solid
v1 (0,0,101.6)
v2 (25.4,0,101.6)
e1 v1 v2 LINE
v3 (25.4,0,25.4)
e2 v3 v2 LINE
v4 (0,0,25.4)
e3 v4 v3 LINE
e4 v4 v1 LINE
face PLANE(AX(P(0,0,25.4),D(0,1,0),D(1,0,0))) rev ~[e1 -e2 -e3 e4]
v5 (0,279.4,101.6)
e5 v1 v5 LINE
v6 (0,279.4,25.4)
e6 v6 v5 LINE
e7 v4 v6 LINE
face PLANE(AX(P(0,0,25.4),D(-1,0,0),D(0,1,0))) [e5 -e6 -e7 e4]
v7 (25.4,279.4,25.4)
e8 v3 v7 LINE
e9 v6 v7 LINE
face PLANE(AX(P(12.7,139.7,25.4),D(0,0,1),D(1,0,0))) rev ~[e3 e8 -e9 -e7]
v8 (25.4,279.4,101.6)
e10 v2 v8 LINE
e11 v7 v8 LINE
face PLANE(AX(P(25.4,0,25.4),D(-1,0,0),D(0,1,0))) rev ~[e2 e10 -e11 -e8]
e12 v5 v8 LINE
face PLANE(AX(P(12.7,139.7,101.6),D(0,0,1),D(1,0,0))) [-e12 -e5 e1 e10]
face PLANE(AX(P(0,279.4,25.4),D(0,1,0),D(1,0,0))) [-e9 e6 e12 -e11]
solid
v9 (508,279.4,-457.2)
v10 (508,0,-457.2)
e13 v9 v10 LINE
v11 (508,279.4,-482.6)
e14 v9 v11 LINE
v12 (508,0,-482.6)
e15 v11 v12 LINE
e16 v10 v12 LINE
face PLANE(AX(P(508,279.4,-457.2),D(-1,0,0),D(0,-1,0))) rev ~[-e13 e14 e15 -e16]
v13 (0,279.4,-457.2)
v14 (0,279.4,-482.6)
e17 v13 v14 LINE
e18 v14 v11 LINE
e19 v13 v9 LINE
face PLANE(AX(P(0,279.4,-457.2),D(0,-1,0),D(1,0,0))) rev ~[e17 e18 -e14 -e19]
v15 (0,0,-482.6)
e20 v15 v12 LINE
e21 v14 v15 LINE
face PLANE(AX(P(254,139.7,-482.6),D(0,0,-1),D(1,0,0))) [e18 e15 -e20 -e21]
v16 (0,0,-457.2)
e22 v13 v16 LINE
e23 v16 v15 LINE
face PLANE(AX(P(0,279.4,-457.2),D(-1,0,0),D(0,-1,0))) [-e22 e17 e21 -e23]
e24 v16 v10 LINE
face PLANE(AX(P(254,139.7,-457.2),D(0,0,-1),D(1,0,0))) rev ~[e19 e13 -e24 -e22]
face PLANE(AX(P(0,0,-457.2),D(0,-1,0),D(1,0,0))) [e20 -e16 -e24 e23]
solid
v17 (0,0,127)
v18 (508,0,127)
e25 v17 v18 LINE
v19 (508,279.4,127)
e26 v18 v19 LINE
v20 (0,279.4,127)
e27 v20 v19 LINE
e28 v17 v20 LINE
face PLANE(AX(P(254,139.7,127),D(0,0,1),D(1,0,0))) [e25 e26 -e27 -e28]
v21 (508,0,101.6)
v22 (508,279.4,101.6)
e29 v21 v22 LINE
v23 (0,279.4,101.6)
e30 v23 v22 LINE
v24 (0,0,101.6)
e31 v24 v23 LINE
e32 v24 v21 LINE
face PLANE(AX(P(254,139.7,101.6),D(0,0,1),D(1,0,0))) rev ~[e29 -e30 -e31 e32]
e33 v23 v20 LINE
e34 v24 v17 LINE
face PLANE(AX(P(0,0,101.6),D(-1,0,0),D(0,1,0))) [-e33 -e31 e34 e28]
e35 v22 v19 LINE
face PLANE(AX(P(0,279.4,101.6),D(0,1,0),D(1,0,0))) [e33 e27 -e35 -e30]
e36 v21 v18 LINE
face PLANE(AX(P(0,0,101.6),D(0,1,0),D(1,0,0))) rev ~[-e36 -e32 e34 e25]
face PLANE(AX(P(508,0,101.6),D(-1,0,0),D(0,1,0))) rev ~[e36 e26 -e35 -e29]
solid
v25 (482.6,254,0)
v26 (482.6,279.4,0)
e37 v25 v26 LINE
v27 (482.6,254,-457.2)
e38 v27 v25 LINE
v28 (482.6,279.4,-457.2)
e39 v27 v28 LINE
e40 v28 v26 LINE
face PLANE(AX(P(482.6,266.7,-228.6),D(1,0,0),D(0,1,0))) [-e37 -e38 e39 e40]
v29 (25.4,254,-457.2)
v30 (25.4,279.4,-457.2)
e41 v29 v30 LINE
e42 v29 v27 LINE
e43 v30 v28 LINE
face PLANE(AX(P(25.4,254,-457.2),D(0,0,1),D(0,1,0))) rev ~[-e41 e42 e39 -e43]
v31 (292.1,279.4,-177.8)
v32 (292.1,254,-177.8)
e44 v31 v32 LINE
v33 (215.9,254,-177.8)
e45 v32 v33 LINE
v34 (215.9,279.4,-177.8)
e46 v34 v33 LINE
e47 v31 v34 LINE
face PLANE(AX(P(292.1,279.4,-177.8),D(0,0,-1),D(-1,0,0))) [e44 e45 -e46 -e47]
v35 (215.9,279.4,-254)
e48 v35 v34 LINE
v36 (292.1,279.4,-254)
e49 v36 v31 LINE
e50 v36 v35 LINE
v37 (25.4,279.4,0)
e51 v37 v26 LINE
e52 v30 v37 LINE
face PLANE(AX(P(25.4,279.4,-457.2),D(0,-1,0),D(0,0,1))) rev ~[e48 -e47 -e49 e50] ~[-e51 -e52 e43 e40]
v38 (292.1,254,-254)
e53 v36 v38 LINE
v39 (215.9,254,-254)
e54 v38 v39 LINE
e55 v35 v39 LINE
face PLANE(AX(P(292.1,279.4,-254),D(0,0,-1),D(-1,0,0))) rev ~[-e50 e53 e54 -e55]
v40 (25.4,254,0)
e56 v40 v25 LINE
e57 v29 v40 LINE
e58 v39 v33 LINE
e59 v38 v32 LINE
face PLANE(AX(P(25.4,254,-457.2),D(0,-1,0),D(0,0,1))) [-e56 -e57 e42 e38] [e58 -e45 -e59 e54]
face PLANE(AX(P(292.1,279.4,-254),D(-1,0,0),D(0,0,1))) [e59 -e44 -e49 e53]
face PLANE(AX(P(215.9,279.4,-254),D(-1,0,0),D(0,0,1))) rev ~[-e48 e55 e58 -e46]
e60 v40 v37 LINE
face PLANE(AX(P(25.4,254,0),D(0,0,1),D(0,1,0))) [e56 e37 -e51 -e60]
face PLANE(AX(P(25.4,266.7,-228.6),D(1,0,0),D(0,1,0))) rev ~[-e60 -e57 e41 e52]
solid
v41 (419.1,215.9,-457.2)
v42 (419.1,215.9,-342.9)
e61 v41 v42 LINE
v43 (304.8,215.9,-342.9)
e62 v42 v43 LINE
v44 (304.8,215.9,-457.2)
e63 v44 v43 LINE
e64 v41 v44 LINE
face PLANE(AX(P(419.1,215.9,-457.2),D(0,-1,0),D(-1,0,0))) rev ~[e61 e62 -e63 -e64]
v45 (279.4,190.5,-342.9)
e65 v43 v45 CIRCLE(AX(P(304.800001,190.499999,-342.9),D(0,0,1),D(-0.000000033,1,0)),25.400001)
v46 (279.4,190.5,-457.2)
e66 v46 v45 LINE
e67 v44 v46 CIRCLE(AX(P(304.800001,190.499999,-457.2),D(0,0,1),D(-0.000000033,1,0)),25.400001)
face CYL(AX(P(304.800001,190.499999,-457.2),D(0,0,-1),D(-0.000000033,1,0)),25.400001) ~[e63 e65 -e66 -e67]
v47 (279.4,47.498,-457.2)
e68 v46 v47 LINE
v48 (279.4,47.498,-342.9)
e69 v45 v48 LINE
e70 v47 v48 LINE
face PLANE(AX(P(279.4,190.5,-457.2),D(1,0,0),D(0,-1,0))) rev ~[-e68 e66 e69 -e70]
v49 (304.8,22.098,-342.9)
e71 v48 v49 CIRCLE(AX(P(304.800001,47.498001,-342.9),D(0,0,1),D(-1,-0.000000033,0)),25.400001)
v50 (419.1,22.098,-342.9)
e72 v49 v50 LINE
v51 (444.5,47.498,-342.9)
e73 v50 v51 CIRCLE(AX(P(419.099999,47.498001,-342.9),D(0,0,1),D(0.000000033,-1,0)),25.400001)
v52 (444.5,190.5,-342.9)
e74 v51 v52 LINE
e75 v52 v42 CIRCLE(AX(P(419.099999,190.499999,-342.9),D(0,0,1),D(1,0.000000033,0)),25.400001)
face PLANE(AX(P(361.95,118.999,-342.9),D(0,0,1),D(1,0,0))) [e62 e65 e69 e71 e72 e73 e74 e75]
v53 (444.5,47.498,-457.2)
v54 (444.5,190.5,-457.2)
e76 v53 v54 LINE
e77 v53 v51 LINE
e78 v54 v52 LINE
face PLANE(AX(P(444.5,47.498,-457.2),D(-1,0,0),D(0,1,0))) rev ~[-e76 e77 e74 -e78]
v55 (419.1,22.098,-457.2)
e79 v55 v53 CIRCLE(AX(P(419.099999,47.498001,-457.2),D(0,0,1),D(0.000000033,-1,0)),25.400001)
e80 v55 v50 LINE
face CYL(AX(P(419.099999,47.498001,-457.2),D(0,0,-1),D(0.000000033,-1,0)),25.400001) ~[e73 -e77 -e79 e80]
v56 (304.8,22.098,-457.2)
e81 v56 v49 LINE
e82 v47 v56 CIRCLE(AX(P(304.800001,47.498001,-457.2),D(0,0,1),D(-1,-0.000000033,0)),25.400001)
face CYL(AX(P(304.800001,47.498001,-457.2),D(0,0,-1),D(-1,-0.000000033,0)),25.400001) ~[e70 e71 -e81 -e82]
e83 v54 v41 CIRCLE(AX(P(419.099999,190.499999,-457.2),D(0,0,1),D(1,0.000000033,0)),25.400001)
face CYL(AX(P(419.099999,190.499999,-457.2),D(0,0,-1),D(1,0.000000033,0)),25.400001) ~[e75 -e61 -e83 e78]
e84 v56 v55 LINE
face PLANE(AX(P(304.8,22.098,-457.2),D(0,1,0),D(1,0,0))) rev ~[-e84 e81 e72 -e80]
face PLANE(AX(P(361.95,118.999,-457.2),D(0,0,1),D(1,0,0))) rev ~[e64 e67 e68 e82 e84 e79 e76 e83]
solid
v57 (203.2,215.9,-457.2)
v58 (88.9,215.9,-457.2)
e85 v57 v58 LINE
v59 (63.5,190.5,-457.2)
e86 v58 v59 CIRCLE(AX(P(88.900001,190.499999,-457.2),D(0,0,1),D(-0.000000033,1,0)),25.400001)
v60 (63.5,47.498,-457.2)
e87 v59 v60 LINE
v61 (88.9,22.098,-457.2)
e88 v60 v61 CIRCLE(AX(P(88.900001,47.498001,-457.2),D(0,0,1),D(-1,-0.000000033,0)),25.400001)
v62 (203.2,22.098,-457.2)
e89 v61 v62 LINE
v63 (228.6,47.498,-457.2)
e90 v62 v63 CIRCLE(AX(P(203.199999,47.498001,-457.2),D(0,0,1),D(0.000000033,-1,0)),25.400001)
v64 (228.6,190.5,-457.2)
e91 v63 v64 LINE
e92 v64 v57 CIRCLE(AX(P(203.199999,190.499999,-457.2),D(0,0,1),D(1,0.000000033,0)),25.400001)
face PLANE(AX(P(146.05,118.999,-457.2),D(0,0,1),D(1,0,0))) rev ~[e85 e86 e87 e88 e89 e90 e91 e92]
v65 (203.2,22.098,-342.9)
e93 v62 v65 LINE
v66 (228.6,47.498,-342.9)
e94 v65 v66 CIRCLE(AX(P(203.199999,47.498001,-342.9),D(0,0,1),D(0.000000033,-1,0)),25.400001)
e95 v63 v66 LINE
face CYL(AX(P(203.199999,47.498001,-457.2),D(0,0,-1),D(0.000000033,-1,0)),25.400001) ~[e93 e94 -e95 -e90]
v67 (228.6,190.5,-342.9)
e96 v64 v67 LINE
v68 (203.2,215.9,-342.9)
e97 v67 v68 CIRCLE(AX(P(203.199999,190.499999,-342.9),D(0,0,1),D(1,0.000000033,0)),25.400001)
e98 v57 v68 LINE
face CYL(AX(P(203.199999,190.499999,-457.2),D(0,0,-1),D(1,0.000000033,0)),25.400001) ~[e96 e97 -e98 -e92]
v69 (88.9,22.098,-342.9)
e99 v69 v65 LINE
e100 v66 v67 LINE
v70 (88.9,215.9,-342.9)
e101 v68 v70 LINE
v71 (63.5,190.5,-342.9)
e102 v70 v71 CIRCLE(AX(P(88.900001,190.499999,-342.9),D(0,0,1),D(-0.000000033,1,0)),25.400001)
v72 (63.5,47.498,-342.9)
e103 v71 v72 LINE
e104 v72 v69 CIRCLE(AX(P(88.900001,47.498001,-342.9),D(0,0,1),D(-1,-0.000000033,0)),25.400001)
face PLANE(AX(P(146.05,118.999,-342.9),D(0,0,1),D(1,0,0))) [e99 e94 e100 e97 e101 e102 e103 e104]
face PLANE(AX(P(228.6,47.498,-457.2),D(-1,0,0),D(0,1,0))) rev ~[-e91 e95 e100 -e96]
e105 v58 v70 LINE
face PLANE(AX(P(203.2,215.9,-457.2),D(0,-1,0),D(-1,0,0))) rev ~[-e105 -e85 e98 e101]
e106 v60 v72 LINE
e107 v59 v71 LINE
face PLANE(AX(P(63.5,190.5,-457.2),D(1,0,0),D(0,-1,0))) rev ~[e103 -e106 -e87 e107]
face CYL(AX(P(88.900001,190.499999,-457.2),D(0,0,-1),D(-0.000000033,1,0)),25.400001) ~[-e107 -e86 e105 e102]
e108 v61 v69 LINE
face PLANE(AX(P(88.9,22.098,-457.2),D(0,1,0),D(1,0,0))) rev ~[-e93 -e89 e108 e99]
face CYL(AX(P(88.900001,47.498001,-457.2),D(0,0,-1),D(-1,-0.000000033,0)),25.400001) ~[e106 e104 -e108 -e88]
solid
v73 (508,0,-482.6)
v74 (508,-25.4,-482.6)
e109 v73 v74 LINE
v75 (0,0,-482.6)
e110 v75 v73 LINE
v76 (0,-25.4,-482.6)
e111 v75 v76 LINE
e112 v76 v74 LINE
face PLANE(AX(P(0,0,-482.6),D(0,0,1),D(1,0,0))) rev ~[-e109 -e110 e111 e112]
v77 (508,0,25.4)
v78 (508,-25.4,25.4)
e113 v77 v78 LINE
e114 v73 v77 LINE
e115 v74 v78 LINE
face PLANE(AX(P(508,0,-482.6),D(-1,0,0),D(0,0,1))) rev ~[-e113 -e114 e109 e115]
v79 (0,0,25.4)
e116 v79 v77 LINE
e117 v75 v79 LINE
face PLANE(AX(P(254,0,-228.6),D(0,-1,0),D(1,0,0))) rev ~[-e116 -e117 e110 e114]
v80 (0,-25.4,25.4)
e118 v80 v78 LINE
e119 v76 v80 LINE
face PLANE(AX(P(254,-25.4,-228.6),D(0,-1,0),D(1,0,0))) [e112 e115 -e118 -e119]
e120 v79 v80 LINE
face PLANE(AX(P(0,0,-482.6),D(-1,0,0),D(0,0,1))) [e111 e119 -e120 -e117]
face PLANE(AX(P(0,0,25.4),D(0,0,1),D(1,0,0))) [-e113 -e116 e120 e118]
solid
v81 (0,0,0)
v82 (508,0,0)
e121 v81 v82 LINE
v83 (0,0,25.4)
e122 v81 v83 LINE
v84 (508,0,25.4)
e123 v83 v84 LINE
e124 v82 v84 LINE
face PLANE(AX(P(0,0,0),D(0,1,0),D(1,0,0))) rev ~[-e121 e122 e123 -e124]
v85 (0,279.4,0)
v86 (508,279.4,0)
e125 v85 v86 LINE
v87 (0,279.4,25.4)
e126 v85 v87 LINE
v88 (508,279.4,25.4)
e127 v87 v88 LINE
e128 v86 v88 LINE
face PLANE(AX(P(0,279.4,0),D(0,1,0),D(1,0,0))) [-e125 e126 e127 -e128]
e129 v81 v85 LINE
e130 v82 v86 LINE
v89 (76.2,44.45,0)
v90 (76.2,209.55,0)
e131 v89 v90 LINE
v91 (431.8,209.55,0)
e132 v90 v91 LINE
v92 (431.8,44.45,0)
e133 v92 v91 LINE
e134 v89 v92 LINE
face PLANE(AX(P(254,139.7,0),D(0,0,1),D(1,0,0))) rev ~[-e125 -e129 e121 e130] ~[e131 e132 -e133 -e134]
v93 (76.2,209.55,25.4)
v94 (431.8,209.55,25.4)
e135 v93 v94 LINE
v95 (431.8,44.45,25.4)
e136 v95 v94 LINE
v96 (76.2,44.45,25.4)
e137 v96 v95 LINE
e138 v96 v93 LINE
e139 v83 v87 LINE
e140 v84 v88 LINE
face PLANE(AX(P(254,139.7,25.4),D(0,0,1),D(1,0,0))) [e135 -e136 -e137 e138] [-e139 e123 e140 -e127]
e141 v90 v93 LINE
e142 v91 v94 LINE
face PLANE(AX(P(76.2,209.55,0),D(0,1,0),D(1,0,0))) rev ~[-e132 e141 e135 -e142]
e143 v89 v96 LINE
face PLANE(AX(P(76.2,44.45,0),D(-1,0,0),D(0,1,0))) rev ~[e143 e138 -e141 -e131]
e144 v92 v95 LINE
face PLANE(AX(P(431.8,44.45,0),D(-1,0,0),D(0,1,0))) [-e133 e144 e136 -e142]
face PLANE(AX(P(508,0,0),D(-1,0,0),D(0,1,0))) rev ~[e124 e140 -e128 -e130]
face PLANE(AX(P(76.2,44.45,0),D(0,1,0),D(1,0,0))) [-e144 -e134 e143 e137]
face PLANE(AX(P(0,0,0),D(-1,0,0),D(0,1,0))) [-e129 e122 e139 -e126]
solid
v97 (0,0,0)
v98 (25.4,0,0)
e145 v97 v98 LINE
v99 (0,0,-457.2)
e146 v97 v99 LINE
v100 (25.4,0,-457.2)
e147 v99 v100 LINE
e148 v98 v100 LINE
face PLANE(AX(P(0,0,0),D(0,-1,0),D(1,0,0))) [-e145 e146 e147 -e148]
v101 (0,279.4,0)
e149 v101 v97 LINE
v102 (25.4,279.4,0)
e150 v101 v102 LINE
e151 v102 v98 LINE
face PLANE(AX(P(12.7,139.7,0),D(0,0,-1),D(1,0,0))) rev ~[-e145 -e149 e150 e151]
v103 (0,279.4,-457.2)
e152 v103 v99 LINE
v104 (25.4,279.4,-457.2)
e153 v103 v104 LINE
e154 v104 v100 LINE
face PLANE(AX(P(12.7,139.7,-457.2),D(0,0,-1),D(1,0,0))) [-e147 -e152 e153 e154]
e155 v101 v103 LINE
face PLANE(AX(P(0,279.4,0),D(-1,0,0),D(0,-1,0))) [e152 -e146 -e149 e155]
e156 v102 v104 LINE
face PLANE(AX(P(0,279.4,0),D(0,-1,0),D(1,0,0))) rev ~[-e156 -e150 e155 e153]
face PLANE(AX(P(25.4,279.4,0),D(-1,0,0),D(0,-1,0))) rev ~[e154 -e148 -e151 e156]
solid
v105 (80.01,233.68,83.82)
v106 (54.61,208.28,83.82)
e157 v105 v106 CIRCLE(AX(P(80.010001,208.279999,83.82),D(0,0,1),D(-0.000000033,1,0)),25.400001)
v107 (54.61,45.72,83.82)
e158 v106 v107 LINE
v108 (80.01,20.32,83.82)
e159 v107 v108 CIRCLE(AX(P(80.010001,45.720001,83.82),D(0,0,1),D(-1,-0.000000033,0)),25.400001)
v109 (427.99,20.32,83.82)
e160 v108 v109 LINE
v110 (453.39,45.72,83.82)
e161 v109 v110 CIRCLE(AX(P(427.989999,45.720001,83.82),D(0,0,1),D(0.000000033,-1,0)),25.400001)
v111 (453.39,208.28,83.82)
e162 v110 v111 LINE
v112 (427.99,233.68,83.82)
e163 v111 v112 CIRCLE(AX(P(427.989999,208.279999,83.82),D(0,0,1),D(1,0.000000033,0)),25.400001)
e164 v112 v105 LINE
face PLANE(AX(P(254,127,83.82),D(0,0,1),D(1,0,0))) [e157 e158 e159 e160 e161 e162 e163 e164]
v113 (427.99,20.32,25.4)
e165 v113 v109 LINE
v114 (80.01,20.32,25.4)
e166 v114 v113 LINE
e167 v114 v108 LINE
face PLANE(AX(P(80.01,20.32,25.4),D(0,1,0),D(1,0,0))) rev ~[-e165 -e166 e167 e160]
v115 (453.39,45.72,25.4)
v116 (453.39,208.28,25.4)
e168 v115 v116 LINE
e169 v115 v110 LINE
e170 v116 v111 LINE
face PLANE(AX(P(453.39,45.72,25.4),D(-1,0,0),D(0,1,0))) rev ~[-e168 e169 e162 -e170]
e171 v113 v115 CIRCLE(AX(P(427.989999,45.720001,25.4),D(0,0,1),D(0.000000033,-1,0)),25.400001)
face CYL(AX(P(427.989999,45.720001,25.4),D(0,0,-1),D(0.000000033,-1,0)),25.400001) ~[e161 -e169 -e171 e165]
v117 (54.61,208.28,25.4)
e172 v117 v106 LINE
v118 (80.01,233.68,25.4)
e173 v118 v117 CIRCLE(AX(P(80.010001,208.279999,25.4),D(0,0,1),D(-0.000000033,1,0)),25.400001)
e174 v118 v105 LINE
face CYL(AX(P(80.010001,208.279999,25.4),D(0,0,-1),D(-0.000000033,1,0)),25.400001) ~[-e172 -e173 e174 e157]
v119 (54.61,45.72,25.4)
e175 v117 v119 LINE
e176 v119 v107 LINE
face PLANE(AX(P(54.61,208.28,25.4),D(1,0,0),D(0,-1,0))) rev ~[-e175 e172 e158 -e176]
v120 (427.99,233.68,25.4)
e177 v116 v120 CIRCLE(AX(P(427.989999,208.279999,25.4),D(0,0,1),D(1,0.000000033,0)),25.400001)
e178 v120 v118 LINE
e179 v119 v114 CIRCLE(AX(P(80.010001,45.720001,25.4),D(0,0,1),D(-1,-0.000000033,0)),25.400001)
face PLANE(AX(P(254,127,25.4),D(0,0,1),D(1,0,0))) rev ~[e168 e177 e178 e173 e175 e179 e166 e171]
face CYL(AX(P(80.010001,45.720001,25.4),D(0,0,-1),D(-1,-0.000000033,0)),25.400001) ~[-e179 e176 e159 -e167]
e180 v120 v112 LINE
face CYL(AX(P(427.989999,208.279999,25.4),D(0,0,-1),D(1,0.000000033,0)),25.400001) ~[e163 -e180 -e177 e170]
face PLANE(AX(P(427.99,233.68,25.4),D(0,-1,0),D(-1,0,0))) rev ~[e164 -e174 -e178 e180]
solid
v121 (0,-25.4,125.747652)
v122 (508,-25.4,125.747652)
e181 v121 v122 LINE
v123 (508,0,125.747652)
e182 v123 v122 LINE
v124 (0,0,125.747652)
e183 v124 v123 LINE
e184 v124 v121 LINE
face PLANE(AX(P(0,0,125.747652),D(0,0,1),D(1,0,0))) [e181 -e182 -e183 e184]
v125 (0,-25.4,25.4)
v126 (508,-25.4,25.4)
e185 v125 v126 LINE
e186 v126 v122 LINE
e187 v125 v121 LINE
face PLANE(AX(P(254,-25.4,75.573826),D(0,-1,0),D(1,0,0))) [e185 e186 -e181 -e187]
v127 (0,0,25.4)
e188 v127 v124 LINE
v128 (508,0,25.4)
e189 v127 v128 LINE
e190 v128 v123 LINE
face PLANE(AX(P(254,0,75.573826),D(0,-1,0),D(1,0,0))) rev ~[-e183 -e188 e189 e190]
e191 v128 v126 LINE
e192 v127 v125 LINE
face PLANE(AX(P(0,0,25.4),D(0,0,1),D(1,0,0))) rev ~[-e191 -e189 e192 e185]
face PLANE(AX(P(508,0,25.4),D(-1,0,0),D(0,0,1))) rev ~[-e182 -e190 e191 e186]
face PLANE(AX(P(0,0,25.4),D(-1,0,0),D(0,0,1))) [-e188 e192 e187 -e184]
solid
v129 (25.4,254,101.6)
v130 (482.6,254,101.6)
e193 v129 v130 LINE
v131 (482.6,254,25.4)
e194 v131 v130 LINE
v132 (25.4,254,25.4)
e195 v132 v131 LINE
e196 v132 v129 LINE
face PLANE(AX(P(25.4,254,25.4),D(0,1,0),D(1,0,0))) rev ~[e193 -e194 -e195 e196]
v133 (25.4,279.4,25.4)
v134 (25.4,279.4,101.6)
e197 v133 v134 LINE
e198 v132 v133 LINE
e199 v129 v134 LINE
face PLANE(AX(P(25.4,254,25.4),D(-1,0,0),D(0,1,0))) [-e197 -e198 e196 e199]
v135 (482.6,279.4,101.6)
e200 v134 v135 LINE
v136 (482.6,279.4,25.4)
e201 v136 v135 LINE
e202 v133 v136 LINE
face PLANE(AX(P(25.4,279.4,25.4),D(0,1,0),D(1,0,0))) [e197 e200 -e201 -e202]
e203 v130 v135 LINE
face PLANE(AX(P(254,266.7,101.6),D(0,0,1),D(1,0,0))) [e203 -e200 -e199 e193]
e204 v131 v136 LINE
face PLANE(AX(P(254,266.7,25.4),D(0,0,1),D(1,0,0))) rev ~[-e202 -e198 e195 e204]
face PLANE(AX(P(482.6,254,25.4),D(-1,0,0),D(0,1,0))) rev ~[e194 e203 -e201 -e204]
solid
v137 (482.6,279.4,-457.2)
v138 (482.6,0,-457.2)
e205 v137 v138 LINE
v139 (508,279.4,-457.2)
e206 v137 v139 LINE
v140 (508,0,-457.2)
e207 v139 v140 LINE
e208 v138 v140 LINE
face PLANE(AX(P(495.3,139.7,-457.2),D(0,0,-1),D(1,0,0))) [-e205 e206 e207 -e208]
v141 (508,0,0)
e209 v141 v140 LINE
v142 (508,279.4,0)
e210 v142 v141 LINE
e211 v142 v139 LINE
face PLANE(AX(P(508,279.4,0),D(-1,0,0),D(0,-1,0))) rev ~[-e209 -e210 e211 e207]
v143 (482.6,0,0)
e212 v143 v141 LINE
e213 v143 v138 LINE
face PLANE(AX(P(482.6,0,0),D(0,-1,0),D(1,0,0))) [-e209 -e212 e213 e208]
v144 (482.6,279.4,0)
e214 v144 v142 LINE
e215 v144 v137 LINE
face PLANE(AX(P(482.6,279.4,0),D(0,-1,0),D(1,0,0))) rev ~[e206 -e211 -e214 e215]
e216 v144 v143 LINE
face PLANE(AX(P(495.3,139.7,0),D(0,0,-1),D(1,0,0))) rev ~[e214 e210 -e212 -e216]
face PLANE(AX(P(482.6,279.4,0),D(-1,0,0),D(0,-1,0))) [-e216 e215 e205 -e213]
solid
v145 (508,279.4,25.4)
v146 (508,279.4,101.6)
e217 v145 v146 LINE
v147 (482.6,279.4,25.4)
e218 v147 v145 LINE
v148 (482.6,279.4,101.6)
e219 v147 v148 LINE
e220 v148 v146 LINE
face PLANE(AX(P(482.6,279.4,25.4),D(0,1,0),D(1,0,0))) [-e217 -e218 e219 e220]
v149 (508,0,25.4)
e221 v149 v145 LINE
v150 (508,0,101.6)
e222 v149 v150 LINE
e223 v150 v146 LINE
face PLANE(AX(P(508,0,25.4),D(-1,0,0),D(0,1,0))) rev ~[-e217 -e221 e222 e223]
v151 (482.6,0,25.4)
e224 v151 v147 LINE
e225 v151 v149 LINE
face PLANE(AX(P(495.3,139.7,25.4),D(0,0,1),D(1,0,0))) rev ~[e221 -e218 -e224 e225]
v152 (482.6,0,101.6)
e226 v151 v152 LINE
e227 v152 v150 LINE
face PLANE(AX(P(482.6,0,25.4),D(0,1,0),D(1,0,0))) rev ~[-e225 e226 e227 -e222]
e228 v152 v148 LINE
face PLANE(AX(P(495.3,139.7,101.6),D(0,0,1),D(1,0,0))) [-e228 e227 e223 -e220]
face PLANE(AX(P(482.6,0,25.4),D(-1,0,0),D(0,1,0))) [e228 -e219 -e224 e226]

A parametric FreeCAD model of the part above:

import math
import FreeCAD as App
import Part
import Sketcher
from FreeCAD import Vector
Q = App.Units.Quantity

doc = App.newDocument("Part")
body = doc.addObject("PartDesign::Body", "Body")

# Sketch on XY plane
sketch1 = body.newObject("Sketcher::SketchObject", "Sketch")
sketch1.AttachmentSupport = (doc.getObject("XY_Plane"), [""])
sketch1.MapMode = "FlatFace"
sketch1.addGeometry([
    Part.LineSegment(Vector(0, 279.4, 0), Vector(0, 0, 0)),  # 0
    Part.LineSegment(Vector(0, 0, 0), Vector(508, 0, 0)),  # 1
    Part.LineSegment(Vector(508, 0, 0), Vector(508, 279.4, 0)),  # 2
    Part.LineSegment(Vector(508, 279.4, 0), Vector(0, 279.4, 0)),  # 3
    Part.LineSegment(Vector(431.8, 44.45, 0), Vector(76.2, 44.45, 0)),  # 4
    Part.LineSegment(Vector(76.2, 44.45, 0), Vector(76.2, 209.55, 0)),  # 5
    Part.LineSegment(Vector(76.2, 209.55, 0), Vector(431.8, 209.55, 0)),  # 6
    Part.LineSegment(Vector(431.8, 209.55, 0), Vector(431.8, 44.45, 0)),  # 7
], False)
sketch1.addConstraint([
    Sketcher.Constraint("Coincident", 0, 2, 1, 1),
    Sketcher.Constraint("Coincident", 1, 2, 2, 1),
    Sketcher.Constraint("Coincident", 2, 2, 3, 1),
    Sketcher.Constraint("Coincident", 3, 2, 0, 1),
    Sketcher.Constraint("Coincident", 4, 2, 5, 1),
    Sketcher.Constraint("Coincident", 5, 2, 6, 1),
    Sketcher.Constraint("Coincident", 6, 2, 7, 1),
    Sketcher.Constraint("Coincident", 7, 2, 4, 1),
    Sketcher.Constraint("Vertical", 0),
    Sketcher.Constraint("Horizontal", 1),
    Sketcher.Constraint("Vertical", 2),
    Sketcher.Constraint("Horizontal", 3),
    Sketcher.Constraint("Horizontal", 4),
    Sketcher.Constraint("Vertical", 5),
    Sketcher.Constraint("Horizontal", 6),
    Sketcher.Constraint("Vertical", 7),
    Sketcher.Constraint("Coincident", 0, 2, -1, 1),
    Sketcher.Constraint("DistanceX", 1, 1, 1, 2, Q("20 in")),
    Sketcher.Constraint("DistanceX", 4, 2, 4, 1, Q("14 in")),
    Sketcher.Constraint("DistanceY", 0, 2, 0, 1, Q("11 in")),
    Sketcher.Constraint("DistanceY", 5, 1, 5, 2, Q("6.5 in")),
    Sketcher.Constraint("DistanceX", -1, 1, 4, 2, Q("3 in")),
    Sketcher.Constraint("DistanceY", -1, 1, 4, 2, Q("1.75 in")),
])
pad1 = body.newObject("PartDesign::Pad", "Pad")
pad1.Profile = sketch1
pad1.Length = Q("1 in")
body2 = doc.addObject("PartDesign::Body", "Body001")

# Sketch on XY plane
sketch2 = body2.newObject("Sketcher::SketchObject", "Sketch001")
sketch2.AttachmentSupport = (doc.getObject("XY_Plane001"), [""])
sketch2.MapMode = "FlatFace"
sketch2.AttachmentOffset = App.Placement(Vector(0, 0, 1 * 25.4), App.Rotation())
sketch2.addGeometry([
    Part.LineSegment(Vector(0, 279.4, 0), Vector(0, 0, 0)),
    Part.LineSegment(Vector(0, 0, 0), Vector(25.4, 0, 0)),
    Part.LineSegment(Vector(25.4, 0, 0), Vector(25.4, 279.4, 0)),
    Part.LineSegment(Vector(25.4, 279.4, 0), Vector(0, 279.4, 0)),
], False)
sketch2.addConstraint([
    Sketcher.Constraint("Coincident", 0, 2, 1, 1),
    Sketcher.Constraint("Coincident", 1, 2, 2, 1),
    Sketcher.Constraint("Coincident", 2, 2, 3, 1),
    Sketcher.Constraint("Coincident", 3, 2, 0, 1),
    Sketcher.Constraint("Vertical", 0),
    Sketcher.Constraint("Horizontal", 1),
    Sketcher.Constraint("Vertical", 2),
    Sketcher.Constraint("Horizontal", 3),
    Sketcher.Constraint("Coincident", 0, 2, -1, 1),
    Sketcher.Constraint("DistanceX", 1, 1, 1, 2, Q("1 in")),
    Sketcher.Constraint("DistanceY", 0, 2, 0, 1, Q("11 in")),
])
pad2 = body2.newObject("PartDesign::Pad", "Pad001")
pad2.Profile = sketch2
pad2.Length = Q("3 in")
body3 = doc.addObject("PartDesign::Body", "Body002")

# Sketch on XY plane
sketch3 = body3.newObject("Sketcher::SketchObject", "Sketch002")
sketch3.AttachmentSupport = (doc.getObject("XY_Plane002"), [""])
sketch3.MapMode = "FlatFace"
sketch3.AttachmentOffset = App.Placement(Vector(0, 0, 1 * 25.4), App.Rotation())
sketch3.addGeometry([
    Part.LineSegment(Vector(482.6, 279.4, 0), Vector(482.6, 0, 0)),
    Part.LineSegment(Vector(482.6, 0, 0), Vector(508, 0, 0)),
    Part.LineSegment(Vector(508, 0, 0), Vector(508, 279.4, 0)),
    Part.LineSegment(Vector(508, 279.4, 0), Vector(482.6, 279.4, 0)),
], False)
sketch3.addConstraint([
    Sketcher.Constraint("Coincident", 0, 2, 1, 1),
    Sketcher.Constraint("Coincident", 1, 2, 2, 1),
    Sketcher.Constraint("Coincident", 2, 2, 3, 1),
    Sketcher.Constraint("Coincident", 3, 2, 0, 1),
    Sketcher.Constraint("Vertical", 0),
    Sketcher.Constraint("Horizontal", 1),
    Sketcher.Constraint("Vertical", 2),
    Sketcher.Constraint("Horizontal", 3),
    Sketcher.Constraint("PointOnObject", 0, 2, -1),
    Sketcher.Constraint("DistanceX", 1, 1, 1, 2, Q("1 in")),
    Sketcher.Constraint("DistanceY", 0, 2, 0, 1, Q("11 in")),
    Sketcher.Constraint("DistanceX", -1, 1, 0, 2, Q("19 in")),
])
pad3 = body3.newObject("PartDesign::Pad", "Pad002")
pad3.Profile = sketch3
pad3.Length = Q("3 in")
body4 = doc.addObject("PartDesign::Body", "Body003")

# Sketch on XY plane
sketch4 = body4.newObject("Sketcher::SketchObject", "Sketch003")
sketch4.AttachmentSupport = (doc.getObject("XY_Plane003"), [""])
sketch4.MapMode = "FlatFace"
sketch4.AttachmentOffset = App.Placement(Vector(0, 0, 1 * 25.4), App.Rotation())
sketch4.addGeometry([
    Part.LineSegment(Vector(25.4, 279.4, 0), Vector(25.4, 254, 0)),
    Part.LineSegment(Vector(25.4, 254, 0), Vector(482.6, 254, 0)),
    Part.LineSegment(Vector(482.6, 254, 0), Vector(482.6, 279.4, 0)),
    Part.LineSegment(Vector(482.6, 279.4, 0), Vector(25.4, 279.4, 0)),
], False)
sketch4.addConstraint([
    Sketcher.Constraint("Coincident", 0, 2, 1, 1),
    Sketcher.Constraint("Coincident", 1, 2, 2, 1),
    Sketcher.Constraint("Coincident", 2, 2, 3, 1),
    Sketcher.Constraint("Coincident", 3, 2, 0, 1),
    Sketcher.Constraint("Vertical", 0),
    Sketcher.Constraint("Horizontal", 1),
    Sketcher.Constraint("Vertical", 2),
    Sketcher.Constraint("Horizontal", 3),
    Sketcher.Constraint("DistanceX", 1, 1, 1, 2, Q("18 in")),
    Sketcher.Constraint("DistanceY", 0, 2, 0, 1, Q("1 in")),
    Sketcher.Constraint("DistanceX", -1, 1, 0, 2, Q("1 in")),
    Sketcher.Constraint("DistanceY", -1, 1, 0, 2, Q("10 in")),
])
pad4 = body4.newObject("PartDesign::Pad", "Pad003")
pad4.Profile = sketch4
pad4.Length = Q("3 in")
body5 = doc.addObject("PartDesign::Body", "Body004")

# Sketch on XY plane
sketch5 = body5.newObject("Sketcher::SketchObject", "Sketch004")
sketch5.AttachmentSupport = (doc.getObject("XY_Plane004"), [""])
sketch5.MapMode = "FlatFace"
sketch5.AttachmentOffset = App.Placement(Vector(0, 0, 1 * 25.4), App.Rotation())
sketch5.addGeometry([
    Part.LineSegment(Vector(427.99, 233.68, 0), Vector(80.01, 233.68, 0)),  # 0
    Part.ArcOfCircle(Part.Circle(Vector(80.010001, 208.279999, 0), Vector(0, 0, 1), 25.400001), math.radians(90.000002), math.radians(179.999998)),  # 1
    Part.LineSegment(Vector(54.61, 208.28, 0), Vector(54.61, 45.72, 0)),  # 2
    Part.ArcOfCircle(Part.Circle(Vector(80.010001, 45.720001, 0), Vector(0, 0, 1), 25.400001), math.radians(-179.999998), math.radians(-90.000002)),  # 3
    Part.LineSegment(Vector(80.01, 20.32, 0), Vector(427.99, 20.32, 0)),  # 4
    Part.ArcOfCircle(Part.Circle(Vector(427.989999, 45.720001, 0), Vector(0, 0, 1), 25.400001), math.radians(-89.999998), math.radians(-0.000002)),  # 5
    Part.LineSegment(Vector(453.39, 45.72, 0), Vector(453.39, 208.28, 0)),  # 6
    Part.ArcOfCircle(Part.Circle(Vector(427.989999, 208.279999, 0), Vector(0, 0, 1), 25.400001), math.radians(0.000002), math.radians(89.999998)),  # 7
], False)
sketch5.addConstraint([
    Sketcher.Constraint("Tangent", 0, 2, 1, 1),
    Sketcher.Constraint("Tangent", 1, 2, 2, 1),
    Sketcher.Constraint("Tangent", 2, 2, 3, 1),
    Sketcher.Constraint("Tangent", 3, 2, 4, 1),
    Sketcher.Constraint("Tangent", 4, 2, 5, 1),
    Sketcher.Constraint("Tangent", 5, 2, 6, 1),
    Sketcher.Constraint("Tangent", 6, 2, 7, 1),
    Sketcher.Constraint("Tangent", 7, 2, 0, 1),
    Sketcher.Constraint("Horizontal", 0),
    Sketcher.Constraint("Vertical", 2),
    Sketcher.Constraint("Horizontal", 4),
    Sketcher.Constraint("Vertical", 6),
    Sketcher.Constraint("Equal", 1, 3),
    Sketcher.Constraint("Equal", 3, 5),
    Sketcher.Constraint("Equal", 5, 7),
    Sketcher.Constraint("Radius", 1, Q("1 in")),
    Sketcher.Constraint("DistanceX", 0, 2, 0, 1, Q("13.7 in")),
    Sketcher.Constraint("DistanceY", 2, 2, 2, 1, Q("6.4 in")),
    Sketcher.Constraint("DistanceY", -1, 1, 1, 3, Q("8.2 in")),
    Sketcher.Constraint("DistanceX", -1, 1, 1, 3, Q("3.15 in")),
])
pad5 = body5.newObject("PartDesign::Pad", "Pad004")
pad5.Profile = sketch5
pad5.Length = Q("2.3 in")
body6 = doc.addObject("PartDesign::Body", "Body005")

# Sketch on XY plane
sketch6 = body6.newObject("Sketcher::SketchObject", "Sketch005")
sketch6.AttachmentSupport = (doc.getObject("XY_Plane005"), [""])
sketch6.MapMode = "FlatFace"
sketch6.AttachmentOffset = App.Placement(Vector(0, 0, 4 * 25.4), App.Rotation())
sketch6.addGeometry([
    Part.LineSegment(Vector(0, 279.4, 0), Vector(0, 0, 0)),
    Part.LineSegment(Vector(0, 0, 0), Vector(508, 0, 0)),
    Part.LineSegment(Vector(508, 0, 0), Vector(508, 279.4, 0)),
    Part.LineSegment(Vector(508, 279.4, 0), Vector(0, 279.4, 0)),
], False)
sketch6.addConstraint([
    Sketcher.Constraint("Coincident", 0, 2, 1, 1),
    Sketcher.Constraint("Coincident", 1, 2, 2, 1),
    Sketcher.Constraint("Coincident", 2, 2, 3, 1),
    Sketcher.Constraint("Coincident", 3, 2, 0, 1),
    Sketcher.Constraint("Vertical", 0),
    Sketcher.Constraint("Horizontal", 1),
    Sketcher.Constraint("Vertical", 2),
    Sketcher.Constraint("Horizontal", 3),
    Sketcher.Constraint("Coincident", 0, 2, -1, 1),
    Sketcher.Constraint("DistanceX", 1, 1, 1, 2, Q("20 in")),
    Sketcher.Constraint("DistanceY", 0, 2, 0, 1, Q("11 in")),
])
pad6 = body6.newObject("PartDesign::Pad", "Pad005")
pad6.Profile = sketch6
pad6.Length = Q("1 in")
body7 = doc.addObject("PartDesign::Body", "Body006")

# Sketch on XY plane
sketch7 = body7.newObject("Sketcher::SketchObject", "Sketch006")
sketch7.AttachmentSupport = (doc.getObject("XY_Plane006"), [""])
sketch7.MapMode = "FlatFace"
sketch7.addGeometry([
    Part.LineSegment(Vector(0, 0, 0), Vector(0, 279.4, 0)),
    Part.LineSegment(Vector(0, 279.4, 0), Vector(25.4, 279.4, 0)),
    Part.LineSegment(Vector(25.4, 279.4, 0), Vector(25.4, 0, 0)),
    Part.LineSegment(Vector(25.4, 0, 0), Vector(0, 0, 0)),
], False)
sketch7.addConstraint([
    Sketcher.Constraint("Coincident", 0, 2, 1, 1),
    Sketcher.Constraint("Coincident", 1, 2, 2, 1),
    Sketcher.Constraint("Coincident", 2, 2, 3, 1),
    Sketcher.Constraint("Coincident", 3, 2, 0, 1),
    Sketcher.Constraint("Vertical", 0),
    Sketcher.Constraint("Horizontal", 1),
    Sketcher.Constraint("Vertical", 2),
    Sketcher.Constraint("Horizontal", 3),
    Sketcher.Constraint("Coincident", 3, 2, -1, 1),
    Sketcher.Constraint("DistanceX", 1, 1, 1, 2, Q("1 in")),
    Sketcher.Constraint("DistanceY", 0, 1, 0, 2, Q("11 in")),
])
pad7 = body7.newObject("PartDesign::Pad", "Pad006")
pad7.Profile = sketch7
pad7.Length = Q("18 in")
pad7.Reversed = True
body8 = doc.addObject("PartDesign::Body", "Body007")

# Sketch on XY plane
sketch8 = body8.newObject("Sketcher::SketchObject", "Sketch007")
sketch8.AttachmentSupport = (doc.getObject("XY_Plane007"), [""])
sketch8.MapMode = "FlatFace"
sketch8.addGeometry([
    Part.LineSegment(Vector(482.6, 0, 0), Vector(482.6, 279.4, 0)),
    Part.LineSegment(Vector(482.6, 279.4, 0), Vector(508, 279.4, 0)),
    Part.LineSegment(Vector(508, 279.4, 0), Vector(508, 0, 0)),
    Part.LineSegment(Vector(508, 0, 0), Vector(482.6, 0, 0)),
], False)
sketch8.addConstraint([
    Sketcher.Constraint("Coincident", 0, 2, 1, 1),
    Sketcher.Constraint("Coincident", 1, 2, 2, 1),
    Sketcher.Constraint("Coincident", 2, 2, 3, 1),
    Sketcher.Constraint("Coincident", 3, 2, 0, 1),
    Sketcher.Constraint("Vertical", 0),
    Sketcher.Constraint("Horizontal", 1),
    Sketcher.Constraint("Vertical", 2),
    Sketcher.Constraint("Horizontal", 3),
    Sketcher.Constraint("PointOnObject", 2, 2, -1),
    Sketcher.Constraint("DistanceX", 1, 1, 1, 2, Q("1 in")),
    Sketcher.Constraint("DistanceY", 0, 1, 0, 2, Q("11 in")),
    Sketcher.Constraint("DistanceX", -1, 1, 0, 2, Q("19 in")),
])
pad8 = body8.newObject("PartDesign::Pad", "Pad007")
pad8.Profile = sketch8
pad8.Length = Q("18 in")
pad8.Reversed = True
body9 = doc.addObject("PartDesign::Body", "Body008")

# Sketch on XY plane
sketch9 = body9.newObject("Sketcher::SketchObject", "Sketch008")
sketch9.AttachmentSupport = (doc.getObject("XY_Plane008"), [""])
sketch9.MapMode = "FlatFace"
sketch9.AttachmentOffset = App.Placement(Vector(0, 0, -18 * 25.4), App.Rotation())
sketch9.addGeometry([
    Part.LineSegment(Vector(0, 0, 0), Vector(0, 279.4, 0)),
    Part.LineSegment(Vector(0, 279.4, 0), Vector(508, 279.4, 0)),
    Part.LineSegment(Vector(508, 279.4, 0), Vector(508, 0, 0)),
    Part.LineSegment(Vector(508, 0, 0), Vector(0, 0, 0)),
], False)
sketch9.addConstraint([
    Sketcher.Constraint("Coincident", 0, 2, 1, 1),
    Sketcher.Constraint("Coincident", 1, 2, 2, 1),
    Sketcher.Constraint("Coincident", 2, 2, 3, 1),
    Sketcher.Constraint("Coincident", 3, 2, 0, 1),
    Sketcher.Constraint("Vertical", 0),
    Sketcher.Constraint("Horizontal", 1),
    Sketcher.Constraint("Vertical", 2),
    Sketcher.Constraint("Horizontal", 3),
    Sketcher.Constraint("Coincident", 3, 2, -1, 1),
    Sketcher.Constraint("DistanceX", 1, 1, 1, 2, Q("20 in")),
    Sketcher.Constraint("DistanceY", 0, 1, 0, 2, Q("11 in")),
])
pad9 = body9.newObject("PartDesign::Pad", "Pad008")
pad9.Profile = sketch9
pad9.Length = Q("1 in")
pad9.Reversed = True
body10 = doc.addObject("PartDesign::Body", "Body009")

# Sketch on YZ plane
sketch10 = body10.newObject("Sketcher::SketchObject", "Sketch009")
sketch10.AttachmentSupport = (doc.getObject("YZ_Plane009"), [""])
sketch10.MapMode = "FlatFace"
sketch10.AttachmentOffset = App.Placement(Vector(0, 0, 1 * 25.4), App.Rotation())
sketch10.addGeometry([
    Part.LineSegment(Vector(254, 0, 0), Vector(254, -457.2, 0)),
    Part.LineSegment(Vector(254, -457.2, 0), Vector(279.4, -457.2, 0)),
    Part.LineSegment(Vector(279.4, -457.2, 0), Vector(279.4, 0, 0)),
    Part.LineSegment(Vector(279.4, 0, 0), Vector(254, 0, 0)),
], False)
sketch10.addConstraint([
    Sketcher.Constraint("Coincident", 0, 2, 1, 1),
    Sketcher.Constraint("Coincident", 1, 2, 2, 1),
    Sketcher.Constraint("Coincident", 2, 2, 3, 1),
    Sketcher.Constraint("Coincident", 3, 2, 0, 1),
    Sketcher.Constraint("Vertical", 0),
    Sketcher.Constraint("Horizontal", 1),
    Sketcher.Constraint("Vertical", 2),
    Sketcher.Constraint("Horizontal", 3),
    Sketcher.Constraint("PointOnObject", 2, 2, -1),
    Sketcher.Constraint("DistanceX", 1, 1, 1, 2, Q("1 in")),
    Sketcher.Constraint("DistanceY", 0, 2, 0, 1, Q("18 in")),
    Sketcher.Constraint("DistanceX", -1, 1, 0, 2, Q("10 in")),
])
pad10 = body10.newObject("PartDesign::Pad", "Pad009")
pad10.Profile = sketch10
pad10.Length = Q("18 in")

# Sketch on XZ plane
sketch11 = body10.newObject("Sketcher::SketchObject", "Sketch010")
sketch11.AttachmentSupport = (doc.getObject("XZ_Plane009"), [""])
sketch11.MapMode = "FlatFace"
sketch11.AttachmentOffset = App.Placement(Vector(0, 0, -11 * 25.4), App.Rotation())
sketch11.addGeometry([
    Part.LineSegment(Vector(292.1, -177.8, 0), Vector(292.1, -254, 0)),
    Part.LineSegment(Vector(292.1, -254, 0), Vector(215.9, -254, 0)),
    Part.LineSegment(Vector(215.9, -254, 0), Vector(215.9, -177.8, 0)),
    Part.LineSegment(Vector(215.9, -177.8, 0), Vector(292.1, -177.8, 0)),
], False)
sketch11.addConstraint([
    Sketcher.Constraint("Coincident", 0, 2, 1, 1),
    Sketcher.Constraint("Coincident", 1, 2, 2, 1),
    Sketcher.Constraint("Coincident", 2, 2, 3, 1),
    Sketcher.Constraint("Coincident", 3, 2, 0, 1),
    Sketcher.Constraint("Vertical", 0),
    Sketcher.Constraint("Horizontal", 1),
    Sketcher.Constraint("Vertical", 2),
    Sketcher.Constraint("Horizontal", 3),
    Sketcher.Constraint("Equal", 3, 0),
    Sketcher.Constraint("DistanceX", 1, 2, 1, 1, Q("3 in")),
    Sketcher.Constraint("DistanceY", 0, 2, -1, 1, Q("10 in")),
    Sketcher.Constraint("DistanceX", -1, 1, 0, 2, Q("11.5 in")),
])
pocket1 = body10.newObject("PartDesign::Pocket", "Pocket")
pocket1.Profile = sketch11
pocket1.Type = "ThroughAll"
pocket1.Reversed = True
body11 = doc.addObject("PartDesign::Body", "Body010")

# Sketch on XZ plane
sketch12 = body11.newObject("Sketcher::SketchObject", "Sketch011")
sketch12.AttachmentSupport = (doc.getObject("XZ_Plane010"), [""])
sketch12.MapMode = "FlatFace"
sketch12.addGeometry([
    Part.LineSegment(Vector(0, 25.4, 0), Vector(0, -482.6, 0)),
    Part.LineSegment(Vector(0, -482.6, 0), Vector(508, -482.6, 0)),
    Part.LineSegment(Vector(508, -482.6, 0), Vector(508, 25.4, 0)),
    Part.LineSegment(Vector(508, 25.4, 0), Vector(0, 25.4, 0)),
], False)
sketch12.addConstraint([
    Sketcher.Constraint("Coincident", 0, 2, 1, 1),
    Sketcher.Constraint("Coincident", 1, 2, 2, 1),
    Sketcher.Constraint("Coincident", 2, 2, 3, 1),
    Sketcher.Constraint("Coincident", 3, 2, 0, 1),
    Sketcher.Constraint("Vertical", 0),
    Sketcher.Constraint("Horizontal", 1),
    Sketcher.Constraint("Vertical", 2),
    Sketcher.Constraint("Horizontal", 3),
    Sketcher.Constraint("PointOnObject", 0, 2, -2),
    Sketcher.Constraint("Equal", 3, 0),
    Sketcher.Constraint("DistanceX", 1, 1, 1, 2, Q("20 in")),
    Sketcher.Constraint("DistanceY", 0, 2, -1, 1, Q("19 in")),
])
pad11 = body11.newObject("PartDesign::Pad", "Pad010")
pad11.Profile = sketch12
pad11.Length = Q("1 in")
body12 = doc.addObject("PartDesign::Body", "Body011")

# Sketch on XZ plane
sketch13 = body12.newObject("Sketcher::SketchObject", "Sketch012")
sketch13.AttachmentSupport = (doc.getObject("XZ_Plane011"), [""])
sketch13.MapMode = "FlatFace"
sketch13.addGeometry([
    Part.LineSegment(Vector(0, 125.747652, 0), Vector(0, 25.4, 0)),
    Part.LineSegment(Vector(0, 25.4, 0), Vector(508, 25.4, 0)),
    Part.LineSegment(Vector(508, 25.4, 0), Vector(508, 125.747652, 0)),
    Part.LineSegment(Vector(508, 125.747652, 0), Vector(0, 125.747652, 0)),
], False)
sketch13.addConstraint([
    Sketcher.Constraint("Coincident", 0, 2, 1, 1),
    Sketcher.Constraint("Coincident", 1, 2, 2, 1),
    Sketcher.Constraint("Coincident", 2, 2, 3, 1),
    Sketcher.Constraint("Coincident", 3, 2, 0, 1),
    Sketcher.Constraint("Vertical", 0),
    Sketcher.Constraint("Horizontal", 1),
    Sketcher.Constraint("Vertical", 2),
    Sketcher.Constraint("Horizontal", 3),
    Sketcher.Constraint("PointOnObject", 0, 2, -2),
    Sketcher.Constraint("DistanceX", 1, 1, 1, 2, Q("20 in")),
    Sketcher.Constraint("DistanceY", -1, 1, 0, 2, Q("1 in")),
    Sketcher.Constraint("DistanceY", 0, 2, 0, 1, 100.347652),
])
pad12 = body12.newObject("PartDesign::Pad", "Pad011")
pad12.Profile = sketch13
pad12.Length = Q("1 in")
body13 = doc.addObject("PartDesign::Body", "Body012")
body13.AllowCompound = True

# Sketch on XY plane
sketch14 = body13.newObject("Sketcher::SketchObject", "Sketch013")
sketch14.AttachmentSupport = (doc.getObject("XY_Plane012"), [""])
sketch14.MapMode = "FlatFace"
sketch14.AttachmentOffset = App.Placement(Vector(0, 0, -18 * 25.4), App.Rotation())
sketch14.addGeometry([
    Part.ArcOfCircle(Part.Circle(Vector(88.900001, 47.498001, 0), Vector(0, 0, 1), 25.400001), math.radians(-179.999998), math.radians(-90.000002)),  # 0
    Part.LineSegment(Vector(88.9, 22.098, 0), Vector(203.2, 22.098, 0)),  # 1
    Part.ArcOfCircle(Part.Circle(Vector(203.199999, 47.498001, 0), Vector(0, 0, 1), 25.400001), math.radians(-89.999998), math.radians(-0.000002)),  # 2
    Part.LineSegment(Vector(228.6, 47.498, 0), Vector(228.6, 190.5, 0)),  # 3
    Part.ArcOfCircle(Part.Circle(Vector(203.199999, 190.499999, 0), Vector(0, 0, 1), 25.400001), math.radians(0.000002), math.radians(89.999998)),  # 4
    Part.LineSegment(Vector(203.2, 215.9, 0), Vector(88.9, 215.9, 0)),  # 5
    Part.ArcOfCircle(Part.Circle(Vector(88.900001, 190.499999, 0), Vector(0, 0, 1), 25.400001), math.radians(90.000002), math.radians(179.999998)),  # 6
    Part.LineSegment(Vector(63.5, 190.5, 0), Vector(63.5, 47.498, 0)),  # 7
    Part.ArcOfCircle(Part.Circle(Vector(419.099999, 190.499999, 0), Vector(0, 0, 1), 25.400001), math.radians(0.000002), math.radians(89.999998)),  # 8
    Part.LineSegment(Vector(419.1, 215.9, 0), Vector(304.8, 215.9, 0)),  # 9
    Part.ArcOfCircle(Part.Circle(Vector(304.800001, 190.499999, 0), Vector(0, 0, 1), 25.400001), math.radians(90.000002), math.radians(179.999998)),  # 10
    Part.LineSegment(Vector(279.4, 190.5, 0), Vector(279.4, 47.498, 0)),  # 11
    Part.ArcOfCircle(Part.Circle(Vector(304.800001, 47.498001, 0), Vector(0, 0, 1), 25.400001), math.radians(-179.999998), math.radians(-90.000002)),  # 12
    Part.LineSegment(Vector(304.8, 22.098, 0), Vector(419.1, 22.098, 0)),  # 13
    Part.ArcOfCircle(Part.Circle(Vector(419.099999, 47.498001, 0), Vector(0, 0, 1), 25.400001), math.radians(-89.999998), math.radians(-0.000002)),  # 14
    Part.LineSegment(Vector(444.5, 47.498, 0), Vector(444.5, 190.5, 0)),  # 15
], False)
sketch14.addConstraint([
    Sketcher.Constraint("Tangent", 0, 2, 1, 1),
    Sketcher.Constraint("Tangent", 1, 2, 2, 1),
    Sketcher.Constraint("Tangent", 2, 2, 3, 1),
    Sketcher.Constraint("Tangent", 3, 2, 4, 1),
    Sketcher.Constraint("Tangent", 4, 2, 5, 1),
    Sketcher.Constraint("Tangent", 5, 2, 6, 1),
    Sketcher.Constraint("Tangent", 6, 2, 7, 1),
    Sketcher.Constraint("Tangent", 7, 2, 0, 1),
    Sketcher.Constraint("Tangent", 8, 2, 9, 1),
    Sketcher.Constraint("Tangent", 9, 2, 10, 1),
    Sketcher.Constraint("Tangent", 10, 2, 11, 1),
    Sketcher.Constraint("Tangent", 11, 2, 12, 1),
    Sketcher.Constraint("Tangent", 12, 2, 13, 1),
    Sketcher.Constraint("Tangent", 13, 2, 14, 1),
    Sketcher.Constraint("Tangent", 14, 2, 15, 1),
    Sketcher.Constraint("Tangent", 15, 2, 8, 1),
    Sketcher.Constraint("Horizontal", 1),
    Sketcher.Constraint("Vertical", 3),
    Sketcher.Constraint("Horizontal", 5),
    Sketcher.Constraint("Vertical", 7),
    Sketcher.Constraint("Horizontal", 9),
    Sketcher.Constraint("Vertical", 11),
    Sketcher.Constraint("Horizontal", 13),
    Sketcher.Constraint("Vertical", 15),
    Sketcher.Constraint("Equal", 0, 2),
    Sketcher.Constraint("Equal", 2, 4),
    Sketcher.Constraint("Equal", 4, 6),
    Sketcher.Constraint("Equal", 6, 8),
    Sketcher.Constraint("Equal", 8, 10),
    Sketcher.Constraint("Equal", 10, 12),
    Sketcher.Constraint("Equal", 12, 14),
    Sketcher.Constraint("Horizontal", 6, 3, 8, 3),
    Sketcher.Constraint("Horizontal", 2, 3, 12, 3),
    Sketcher.Constraint("Equal", 5, 9),
    Sketcher.Constraint("Radius", 0, Q("1 in")),
    Sketcher.Constraint("DistanceX", 1, 1, 1, 2, Q("4.5 in")),
    Sketcher.Constraint("DistanceX", -1, 1, 2, 3, Q("8 in")),
    Sketcher.Constraint("DistanceX", -1, 1, 10, 3, Q("12 in")),
    Sketcher.Constraint("DistanceY", 3, 1, 3, 2, Q("5.63 in")),
    Sketcher.Constraint("DistanceY", -1, 1, 4, 3, Q("7.5 in")),
])
pad13 = body13.newObject("PartDesign::Pad", "Pad012")
pad13.Profile = sketch14
pad13.Length = Q("4.5 in")

doc.recompute()
